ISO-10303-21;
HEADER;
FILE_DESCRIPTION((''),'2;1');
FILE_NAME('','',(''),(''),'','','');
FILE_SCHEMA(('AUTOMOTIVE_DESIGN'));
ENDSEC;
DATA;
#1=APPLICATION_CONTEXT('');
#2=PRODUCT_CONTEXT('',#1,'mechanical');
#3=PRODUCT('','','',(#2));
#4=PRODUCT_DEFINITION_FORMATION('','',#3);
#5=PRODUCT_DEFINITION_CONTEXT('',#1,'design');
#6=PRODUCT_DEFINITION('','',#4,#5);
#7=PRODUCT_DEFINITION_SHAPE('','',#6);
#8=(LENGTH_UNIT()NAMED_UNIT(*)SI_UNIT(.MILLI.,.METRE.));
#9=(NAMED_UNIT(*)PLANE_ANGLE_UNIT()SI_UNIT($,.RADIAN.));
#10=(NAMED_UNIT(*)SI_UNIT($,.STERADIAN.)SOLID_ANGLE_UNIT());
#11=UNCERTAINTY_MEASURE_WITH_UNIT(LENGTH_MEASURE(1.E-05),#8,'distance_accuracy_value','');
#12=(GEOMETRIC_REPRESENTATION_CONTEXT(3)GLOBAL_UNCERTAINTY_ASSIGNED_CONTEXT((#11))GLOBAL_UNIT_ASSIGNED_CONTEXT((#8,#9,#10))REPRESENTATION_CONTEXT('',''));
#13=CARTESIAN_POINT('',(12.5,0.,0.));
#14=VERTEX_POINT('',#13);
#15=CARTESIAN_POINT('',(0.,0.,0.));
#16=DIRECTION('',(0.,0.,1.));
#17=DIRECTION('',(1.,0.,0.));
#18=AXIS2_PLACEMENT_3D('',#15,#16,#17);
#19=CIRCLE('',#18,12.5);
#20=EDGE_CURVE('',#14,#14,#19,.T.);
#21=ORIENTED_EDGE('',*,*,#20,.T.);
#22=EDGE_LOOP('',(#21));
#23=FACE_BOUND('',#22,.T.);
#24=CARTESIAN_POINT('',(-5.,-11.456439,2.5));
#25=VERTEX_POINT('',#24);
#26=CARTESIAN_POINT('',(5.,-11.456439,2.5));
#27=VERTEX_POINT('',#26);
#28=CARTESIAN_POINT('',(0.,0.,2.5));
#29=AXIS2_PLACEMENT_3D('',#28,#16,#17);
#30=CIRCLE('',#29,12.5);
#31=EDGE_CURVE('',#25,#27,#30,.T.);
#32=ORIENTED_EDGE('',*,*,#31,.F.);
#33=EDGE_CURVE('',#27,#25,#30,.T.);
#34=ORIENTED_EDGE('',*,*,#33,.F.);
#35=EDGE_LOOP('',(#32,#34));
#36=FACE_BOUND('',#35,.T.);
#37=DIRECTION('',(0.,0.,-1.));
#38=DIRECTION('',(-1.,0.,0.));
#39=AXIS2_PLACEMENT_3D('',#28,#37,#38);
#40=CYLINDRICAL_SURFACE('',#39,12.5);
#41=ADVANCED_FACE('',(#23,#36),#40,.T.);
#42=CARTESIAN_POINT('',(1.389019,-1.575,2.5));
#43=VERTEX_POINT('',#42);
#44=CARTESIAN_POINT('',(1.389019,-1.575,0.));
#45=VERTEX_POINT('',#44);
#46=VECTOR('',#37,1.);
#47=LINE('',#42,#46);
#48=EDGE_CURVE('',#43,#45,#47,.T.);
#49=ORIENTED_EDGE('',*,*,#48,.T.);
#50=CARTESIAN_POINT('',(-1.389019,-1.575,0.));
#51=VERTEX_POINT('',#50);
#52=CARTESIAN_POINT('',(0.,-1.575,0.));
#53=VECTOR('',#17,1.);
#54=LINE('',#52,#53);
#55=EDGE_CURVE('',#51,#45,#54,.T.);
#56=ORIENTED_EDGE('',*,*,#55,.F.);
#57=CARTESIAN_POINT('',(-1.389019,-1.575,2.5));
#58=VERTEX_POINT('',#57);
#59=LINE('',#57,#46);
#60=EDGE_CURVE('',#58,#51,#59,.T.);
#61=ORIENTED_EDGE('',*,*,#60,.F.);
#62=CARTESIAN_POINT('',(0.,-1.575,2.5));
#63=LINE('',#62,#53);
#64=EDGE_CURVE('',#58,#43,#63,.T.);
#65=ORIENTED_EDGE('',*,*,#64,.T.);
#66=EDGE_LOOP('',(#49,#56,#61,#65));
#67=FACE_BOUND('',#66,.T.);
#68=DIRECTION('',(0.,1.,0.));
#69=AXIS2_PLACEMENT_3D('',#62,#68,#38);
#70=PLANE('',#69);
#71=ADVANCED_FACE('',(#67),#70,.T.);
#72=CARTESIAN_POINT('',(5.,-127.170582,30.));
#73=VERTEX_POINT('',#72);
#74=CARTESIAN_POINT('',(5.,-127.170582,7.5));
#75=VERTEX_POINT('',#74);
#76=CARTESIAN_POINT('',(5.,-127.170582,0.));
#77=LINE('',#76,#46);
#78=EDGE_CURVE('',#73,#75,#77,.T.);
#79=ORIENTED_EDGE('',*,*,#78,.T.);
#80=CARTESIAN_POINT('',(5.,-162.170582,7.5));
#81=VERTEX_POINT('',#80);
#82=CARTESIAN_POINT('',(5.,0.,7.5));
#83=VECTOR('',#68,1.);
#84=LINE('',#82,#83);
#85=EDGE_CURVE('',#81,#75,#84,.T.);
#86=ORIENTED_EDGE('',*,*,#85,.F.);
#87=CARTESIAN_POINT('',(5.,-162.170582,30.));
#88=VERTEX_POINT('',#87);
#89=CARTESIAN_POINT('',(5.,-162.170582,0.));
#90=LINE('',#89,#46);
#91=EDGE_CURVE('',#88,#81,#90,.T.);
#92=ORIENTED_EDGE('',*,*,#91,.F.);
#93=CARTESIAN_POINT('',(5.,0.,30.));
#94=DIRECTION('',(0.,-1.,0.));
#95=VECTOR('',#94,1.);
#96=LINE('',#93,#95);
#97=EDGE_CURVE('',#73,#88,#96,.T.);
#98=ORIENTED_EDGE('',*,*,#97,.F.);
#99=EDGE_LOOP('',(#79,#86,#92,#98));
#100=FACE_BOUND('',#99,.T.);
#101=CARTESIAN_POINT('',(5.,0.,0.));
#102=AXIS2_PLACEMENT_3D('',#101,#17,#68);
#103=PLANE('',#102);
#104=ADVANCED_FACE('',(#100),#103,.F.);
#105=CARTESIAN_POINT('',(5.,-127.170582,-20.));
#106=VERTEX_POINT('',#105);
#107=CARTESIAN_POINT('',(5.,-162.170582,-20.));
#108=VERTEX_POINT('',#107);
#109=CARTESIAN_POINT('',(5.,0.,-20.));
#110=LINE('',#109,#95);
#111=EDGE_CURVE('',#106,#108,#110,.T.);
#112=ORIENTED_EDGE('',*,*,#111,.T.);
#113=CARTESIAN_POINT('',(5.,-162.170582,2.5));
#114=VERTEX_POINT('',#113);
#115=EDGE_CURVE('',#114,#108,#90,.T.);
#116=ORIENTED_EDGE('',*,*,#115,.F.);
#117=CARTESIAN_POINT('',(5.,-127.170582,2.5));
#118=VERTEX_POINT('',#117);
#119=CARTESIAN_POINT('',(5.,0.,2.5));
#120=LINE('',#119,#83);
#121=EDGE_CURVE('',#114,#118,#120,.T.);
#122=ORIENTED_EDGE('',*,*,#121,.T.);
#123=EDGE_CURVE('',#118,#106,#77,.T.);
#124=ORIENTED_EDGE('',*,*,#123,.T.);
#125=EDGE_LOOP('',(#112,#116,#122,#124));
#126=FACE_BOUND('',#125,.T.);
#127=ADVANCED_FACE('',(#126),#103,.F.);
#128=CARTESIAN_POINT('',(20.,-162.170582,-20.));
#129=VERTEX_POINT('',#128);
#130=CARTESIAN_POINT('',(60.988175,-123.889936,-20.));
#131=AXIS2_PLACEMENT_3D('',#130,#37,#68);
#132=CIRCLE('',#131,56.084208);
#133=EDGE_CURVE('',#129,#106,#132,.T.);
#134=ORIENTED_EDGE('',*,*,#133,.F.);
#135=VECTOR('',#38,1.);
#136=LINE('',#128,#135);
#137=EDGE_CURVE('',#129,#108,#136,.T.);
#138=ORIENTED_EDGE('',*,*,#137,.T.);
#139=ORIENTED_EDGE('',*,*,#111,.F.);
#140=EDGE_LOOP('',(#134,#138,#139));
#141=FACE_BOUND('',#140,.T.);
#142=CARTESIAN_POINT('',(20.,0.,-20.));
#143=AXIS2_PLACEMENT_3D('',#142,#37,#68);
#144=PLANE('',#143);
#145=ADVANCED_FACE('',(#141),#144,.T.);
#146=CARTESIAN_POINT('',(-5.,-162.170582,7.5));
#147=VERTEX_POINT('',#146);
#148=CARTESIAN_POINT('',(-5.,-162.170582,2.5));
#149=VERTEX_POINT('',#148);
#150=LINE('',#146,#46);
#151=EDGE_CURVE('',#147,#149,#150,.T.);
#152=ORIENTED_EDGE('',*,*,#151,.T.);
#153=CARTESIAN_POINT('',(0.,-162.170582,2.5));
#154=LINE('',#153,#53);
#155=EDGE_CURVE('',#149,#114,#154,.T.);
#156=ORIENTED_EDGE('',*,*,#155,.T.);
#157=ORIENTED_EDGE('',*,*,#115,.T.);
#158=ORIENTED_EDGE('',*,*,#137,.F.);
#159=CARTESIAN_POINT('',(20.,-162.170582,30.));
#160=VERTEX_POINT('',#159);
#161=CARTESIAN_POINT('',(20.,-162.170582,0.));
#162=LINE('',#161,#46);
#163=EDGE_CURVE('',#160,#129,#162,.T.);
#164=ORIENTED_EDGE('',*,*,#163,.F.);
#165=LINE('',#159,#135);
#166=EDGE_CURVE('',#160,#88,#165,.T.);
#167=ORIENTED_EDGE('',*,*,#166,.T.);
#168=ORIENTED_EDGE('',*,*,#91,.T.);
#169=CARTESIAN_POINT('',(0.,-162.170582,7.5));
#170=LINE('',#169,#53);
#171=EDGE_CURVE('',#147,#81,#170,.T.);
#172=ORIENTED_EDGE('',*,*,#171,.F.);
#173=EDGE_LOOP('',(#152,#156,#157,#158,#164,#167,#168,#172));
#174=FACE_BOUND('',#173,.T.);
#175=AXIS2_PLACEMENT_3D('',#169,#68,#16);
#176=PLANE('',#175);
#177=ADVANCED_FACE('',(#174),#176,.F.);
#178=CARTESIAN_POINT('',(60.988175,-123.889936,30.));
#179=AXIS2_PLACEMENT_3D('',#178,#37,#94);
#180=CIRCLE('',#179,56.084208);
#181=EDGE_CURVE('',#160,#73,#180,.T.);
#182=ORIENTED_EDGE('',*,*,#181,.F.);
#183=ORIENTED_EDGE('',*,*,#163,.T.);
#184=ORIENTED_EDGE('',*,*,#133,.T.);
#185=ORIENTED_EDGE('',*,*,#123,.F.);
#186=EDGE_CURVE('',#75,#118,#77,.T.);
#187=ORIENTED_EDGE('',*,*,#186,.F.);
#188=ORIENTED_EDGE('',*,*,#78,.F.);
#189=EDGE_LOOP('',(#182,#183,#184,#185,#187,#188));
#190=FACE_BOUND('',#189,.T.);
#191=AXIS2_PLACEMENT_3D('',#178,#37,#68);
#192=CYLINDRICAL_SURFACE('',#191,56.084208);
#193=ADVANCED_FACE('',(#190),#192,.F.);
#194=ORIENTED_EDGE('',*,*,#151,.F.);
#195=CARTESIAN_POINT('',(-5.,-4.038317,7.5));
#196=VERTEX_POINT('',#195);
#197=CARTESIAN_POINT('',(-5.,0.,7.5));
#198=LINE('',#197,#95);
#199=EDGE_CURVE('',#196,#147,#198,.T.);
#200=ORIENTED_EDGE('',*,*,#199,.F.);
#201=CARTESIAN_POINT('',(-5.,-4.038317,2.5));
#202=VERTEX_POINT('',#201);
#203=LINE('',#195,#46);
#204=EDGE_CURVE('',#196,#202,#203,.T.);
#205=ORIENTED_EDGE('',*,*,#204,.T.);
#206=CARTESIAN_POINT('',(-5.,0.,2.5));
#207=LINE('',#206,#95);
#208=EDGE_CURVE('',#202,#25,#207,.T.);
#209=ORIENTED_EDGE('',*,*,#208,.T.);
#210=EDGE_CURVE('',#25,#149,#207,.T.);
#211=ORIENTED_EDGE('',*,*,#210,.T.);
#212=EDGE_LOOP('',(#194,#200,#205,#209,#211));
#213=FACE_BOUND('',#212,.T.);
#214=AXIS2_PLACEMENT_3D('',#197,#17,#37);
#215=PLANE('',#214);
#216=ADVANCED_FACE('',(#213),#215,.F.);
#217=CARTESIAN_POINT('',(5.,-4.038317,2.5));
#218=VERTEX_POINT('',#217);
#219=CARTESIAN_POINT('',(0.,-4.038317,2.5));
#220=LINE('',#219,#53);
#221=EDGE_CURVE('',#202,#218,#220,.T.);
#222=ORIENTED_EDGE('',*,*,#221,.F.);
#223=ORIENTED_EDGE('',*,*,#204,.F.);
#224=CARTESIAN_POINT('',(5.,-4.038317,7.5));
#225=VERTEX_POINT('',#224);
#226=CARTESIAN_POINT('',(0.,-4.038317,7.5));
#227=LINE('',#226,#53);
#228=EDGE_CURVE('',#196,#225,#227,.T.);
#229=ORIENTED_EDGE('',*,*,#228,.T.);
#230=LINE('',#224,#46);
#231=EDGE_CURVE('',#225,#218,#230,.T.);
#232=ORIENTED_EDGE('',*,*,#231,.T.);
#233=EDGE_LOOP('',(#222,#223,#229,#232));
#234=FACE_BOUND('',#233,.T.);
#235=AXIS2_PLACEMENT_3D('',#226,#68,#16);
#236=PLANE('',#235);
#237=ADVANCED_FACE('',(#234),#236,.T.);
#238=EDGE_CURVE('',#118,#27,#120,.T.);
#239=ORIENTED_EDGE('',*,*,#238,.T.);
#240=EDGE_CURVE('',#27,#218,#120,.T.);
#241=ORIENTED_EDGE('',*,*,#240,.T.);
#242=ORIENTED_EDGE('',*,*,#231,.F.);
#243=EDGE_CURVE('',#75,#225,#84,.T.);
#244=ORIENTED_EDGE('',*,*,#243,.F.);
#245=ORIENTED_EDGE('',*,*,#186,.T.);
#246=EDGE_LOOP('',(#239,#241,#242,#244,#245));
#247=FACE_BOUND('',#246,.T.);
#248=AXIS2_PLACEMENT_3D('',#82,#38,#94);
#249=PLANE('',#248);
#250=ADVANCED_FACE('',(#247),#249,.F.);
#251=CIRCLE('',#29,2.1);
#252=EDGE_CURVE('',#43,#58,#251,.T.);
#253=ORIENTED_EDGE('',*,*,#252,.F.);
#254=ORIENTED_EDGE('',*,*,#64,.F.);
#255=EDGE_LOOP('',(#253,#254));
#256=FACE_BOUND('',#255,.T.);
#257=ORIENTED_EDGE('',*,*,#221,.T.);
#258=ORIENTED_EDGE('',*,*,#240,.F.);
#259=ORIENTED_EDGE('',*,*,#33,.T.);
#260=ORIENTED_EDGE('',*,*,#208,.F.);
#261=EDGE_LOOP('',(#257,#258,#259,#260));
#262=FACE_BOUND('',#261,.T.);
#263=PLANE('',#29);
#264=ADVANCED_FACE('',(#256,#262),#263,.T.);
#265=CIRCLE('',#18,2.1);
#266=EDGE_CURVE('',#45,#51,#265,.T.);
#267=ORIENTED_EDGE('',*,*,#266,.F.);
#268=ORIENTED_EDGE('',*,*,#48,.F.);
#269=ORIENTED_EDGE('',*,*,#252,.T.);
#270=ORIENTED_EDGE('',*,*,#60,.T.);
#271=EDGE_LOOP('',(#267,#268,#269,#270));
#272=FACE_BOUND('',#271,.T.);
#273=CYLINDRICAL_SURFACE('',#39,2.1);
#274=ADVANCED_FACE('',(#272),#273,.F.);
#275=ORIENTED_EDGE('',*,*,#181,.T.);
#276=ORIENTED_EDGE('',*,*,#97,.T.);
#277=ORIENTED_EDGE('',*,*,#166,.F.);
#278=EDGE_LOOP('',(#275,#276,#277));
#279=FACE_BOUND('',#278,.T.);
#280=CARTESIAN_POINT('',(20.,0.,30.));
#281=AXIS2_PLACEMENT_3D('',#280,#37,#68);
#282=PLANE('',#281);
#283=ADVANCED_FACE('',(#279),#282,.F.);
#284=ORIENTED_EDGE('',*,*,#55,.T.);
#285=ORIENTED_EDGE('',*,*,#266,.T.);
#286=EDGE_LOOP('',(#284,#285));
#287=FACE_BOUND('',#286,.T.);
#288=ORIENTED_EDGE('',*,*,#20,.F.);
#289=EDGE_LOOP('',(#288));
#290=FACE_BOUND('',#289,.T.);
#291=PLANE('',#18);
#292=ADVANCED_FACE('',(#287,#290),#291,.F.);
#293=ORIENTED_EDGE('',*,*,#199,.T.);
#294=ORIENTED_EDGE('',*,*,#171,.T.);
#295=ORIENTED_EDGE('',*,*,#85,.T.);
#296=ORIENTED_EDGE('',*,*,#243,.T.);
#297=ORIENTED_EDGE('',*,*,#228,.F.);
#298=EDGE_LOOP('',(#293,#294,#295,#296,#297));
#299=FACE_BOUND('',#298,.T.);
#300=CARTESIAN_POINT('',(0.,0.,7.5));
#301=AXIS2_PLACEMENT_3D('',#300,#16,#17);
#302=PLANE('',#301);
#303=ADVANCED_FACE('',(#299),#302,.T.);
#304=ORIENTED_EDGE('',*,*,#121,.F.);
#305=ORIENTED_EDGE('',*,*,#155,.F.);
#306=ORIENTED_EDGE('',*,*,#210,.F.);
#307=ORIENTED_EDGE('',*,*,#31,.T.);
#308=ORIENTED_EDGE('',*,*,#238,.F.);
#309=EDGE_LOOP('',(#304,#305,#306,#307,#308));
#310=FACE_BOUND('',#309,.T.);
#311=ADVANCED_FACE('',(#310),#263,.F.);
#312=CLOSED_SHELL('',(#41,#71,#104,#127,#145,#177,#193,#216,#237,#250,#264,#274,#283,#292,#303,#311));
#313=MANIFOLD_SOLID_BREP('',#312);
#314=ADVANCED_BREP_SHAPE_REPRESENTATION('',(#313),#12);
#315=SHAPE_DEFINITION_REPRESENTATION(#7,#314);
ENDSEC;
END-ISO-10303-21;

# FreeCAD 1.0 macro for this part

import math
import FreeCAD as App
import Part
import Sketcher

V = App.Vector


def add_polygon(sketch, points):
    """Adds a closed chain of lines whose ends are joined by coincident constraints."""
    first, n = sketch.GeometryCount, len(points)
    for a, b in zip(points, points[1:] + points[:1]):
        sketch.addGeometry(Part.LineSegment(App.Vector(*a, 0), App.Vector(*b, 0)), False)
    for i in range(n):
        sketch.addConstraint(Sketcher.Constraint("Coincident", first + i, 2, first + (i + 1) % n, 1))

doc = App.newDocument("Part")
body = doc.addObject("PartDesign::Body", "Body")

sketch1 = body.newObject("Sketcher::SketchObject", "Sketch")
sketch1.AttachmentSupport = (doc.getObject("XY_Plane"), [""])
sketch1.MapMode = "FlatFace"
sketch1.addGeometry([
    Part.Circle(V(0, 0, 0), V(0, 0, 1), 12.5),
    Part.ArcOfCircle(Part.Circle(V(0, 0, 0), V(0, 0, 1), 2.1), math.radians(-49), math.radians(229)),
    Part.LineSegment(V(1.4, -1.6, 0), V(-1.4, -1.6, 0)),
], False)
sketch1.addConstraint([
    Sketcher.Constraint("Coincident", 1, 1, 2, 1),
    Sketcher.Constraint("Coincident", 2, 2, 1, 2),
    Sketcher.Constraint("Horizontal", 2),
    Sketcher.Constraint("Coincident", 0, 3, -1, 1),
    Sketcher.Constraint("Coincident", 1, 3, -1, 1),
    Sketcher.Constraint("Diameter", 0, 25.0),
    Sketcher.Constraint("Radius", 1, 2.1),
    Sketcher.Constraint("DistanceY", 1, 1, -1, 1, 1.575),
])
pad1 = body.newObject("PartDesign::Pad", "Pad")
pad1.Profile = sketch1
pad1.Length = 2.5

sketch2 = body.newObject("Sketcher::SketchObject", "Sketch001")
sketch2.AttachmentSupport = (doc.getObject("XY_Plane"), [""])
sketch2.MapMode = "FlatFace"
sketch2.AttachmentOffset = App.Placement(V(0, 0, 2.5), App.Rotation())
add_polygon(sketch2, [(-5, -162), (5, -162), (5, -4), (-5, -4)])
sketch2.addConstraint([
    Sketcher.Constraint("Horizontal", 0),
    Sketcher.Constraint("Vertical", 1),
    Sketcher.Constraint("Horizontal", 2),
    Sketcher.Constraint("Vertical", 3),
    Sketcher.Constraint("DistanceX", 0, 1, 0, 2, 10.0),
    Sketcher.Constraint("DistanceX", -1, 1, 0, 2, 5.0),
    Sketcher.Constraint("DistanceY", 1, 1, 1, 2, 158.132266),
    Sketcher.Constraint("DistanceY", 0, 2, -1, 1, 162.170582),
])
pad2 = body.newObject("PartDesign::Pad", "Pad001")
pad2.Profile = sketch2
pad2.Length = 5

sketch3 = body.newObject("Sketcher::SketchObject", "Sketch002")
sketch3.AttachmentSupport = (doc.getObject("YZ_Plane"), [""])
sketch3.MapMode = "FlatFace"
sketch3.AttachmentOffset = App.Placement(V(0, 0, 5), App.Rotation())
add_polygon(sketch3, [(-127, 30), (-162, 30), (-162, -20), (-127, -20)])
sketch3.addConstraint([
    Sketcher.Constraint("Horizontal", 0),
    Sketcher.Constraint("Vertical", 1),
    Sketcher.Constraint("Horizontal", 2),
    Sketcher.Constraint("Vertical", 3),
    Sketcher.Constraint("DistanceX", 0, 2, 0, 1, 35.0),
    Sketcher.Constraint("DistanceY", 1, 2, 1, 1, 50.0),
    Sketcher.Constraint("DistanceY", -1, 1, 0, 2, 30.0),
    Sketcher.Constraint("DistanceX", 0, 2, -1, 1, 162.170582),
])
pad3 = body.newObject("PartDesign::Pad", "Pad002")
pad3.Profile = sketch3
pad3.Length = 15

sketch4 = body.newObject("Sketcher::SketchObject", "Sketch003")
sketch4.AttachmentSupport = (doc.getObject("XY_Plane"), [""])
sketch4.MapMode = "FlatFace"
sketch4.AttachmentOffset = App.Placement(V(0, 0, -20), App.Rotation())
sketch4.addGeometry([
    Part.LineSegment(V(5, -127, 0), V(20, -127, 0)),
    Part.LineSegment(V(20, -127, 0), V(20, -162, 0)),
    Part.ArcOfCircle(Part.Circle(V(61, -124, 0), V(0, 0, 1), 56), math.radians(-177), math.radians(-137)),
], False)
sketch4.addConstraint([
    Sketcher.Constraint("Coincident", 0, 2, 1, 1),
    Sketcher.Constraint("Coincident", 1, 2, 2, 2),
    Sketcher.Constraint("Coincident", 2, 1, 0, 1),
    Sketcher.Constraint("Horizontal", 0),
    Sketcher.Constraint("Vertical", 1),
    Sketcher.Constraint("DistanceX", 0, 1, 0, 2, 15.0),
    Sketcher.Constraint("DistanceY", 1, 2, 1, 1, 35.0),
    Sketcher.Constraint("DistanceX", -1, 1, 0, 2, 20.0),
    Sketcher.Constraint("Radius", 2, 56.084208),
    Sketcher.Constraint("DistanceY", 2, 3, -1, 1, 123.889936),
])
pocket1 = body.newObject("PartDesign::Pocket", "Pocket")
pocket1.Profile = sketch4
pocket1.Type = "ThroughAll"
pocket1.Midplane = True

doc.recompute()
